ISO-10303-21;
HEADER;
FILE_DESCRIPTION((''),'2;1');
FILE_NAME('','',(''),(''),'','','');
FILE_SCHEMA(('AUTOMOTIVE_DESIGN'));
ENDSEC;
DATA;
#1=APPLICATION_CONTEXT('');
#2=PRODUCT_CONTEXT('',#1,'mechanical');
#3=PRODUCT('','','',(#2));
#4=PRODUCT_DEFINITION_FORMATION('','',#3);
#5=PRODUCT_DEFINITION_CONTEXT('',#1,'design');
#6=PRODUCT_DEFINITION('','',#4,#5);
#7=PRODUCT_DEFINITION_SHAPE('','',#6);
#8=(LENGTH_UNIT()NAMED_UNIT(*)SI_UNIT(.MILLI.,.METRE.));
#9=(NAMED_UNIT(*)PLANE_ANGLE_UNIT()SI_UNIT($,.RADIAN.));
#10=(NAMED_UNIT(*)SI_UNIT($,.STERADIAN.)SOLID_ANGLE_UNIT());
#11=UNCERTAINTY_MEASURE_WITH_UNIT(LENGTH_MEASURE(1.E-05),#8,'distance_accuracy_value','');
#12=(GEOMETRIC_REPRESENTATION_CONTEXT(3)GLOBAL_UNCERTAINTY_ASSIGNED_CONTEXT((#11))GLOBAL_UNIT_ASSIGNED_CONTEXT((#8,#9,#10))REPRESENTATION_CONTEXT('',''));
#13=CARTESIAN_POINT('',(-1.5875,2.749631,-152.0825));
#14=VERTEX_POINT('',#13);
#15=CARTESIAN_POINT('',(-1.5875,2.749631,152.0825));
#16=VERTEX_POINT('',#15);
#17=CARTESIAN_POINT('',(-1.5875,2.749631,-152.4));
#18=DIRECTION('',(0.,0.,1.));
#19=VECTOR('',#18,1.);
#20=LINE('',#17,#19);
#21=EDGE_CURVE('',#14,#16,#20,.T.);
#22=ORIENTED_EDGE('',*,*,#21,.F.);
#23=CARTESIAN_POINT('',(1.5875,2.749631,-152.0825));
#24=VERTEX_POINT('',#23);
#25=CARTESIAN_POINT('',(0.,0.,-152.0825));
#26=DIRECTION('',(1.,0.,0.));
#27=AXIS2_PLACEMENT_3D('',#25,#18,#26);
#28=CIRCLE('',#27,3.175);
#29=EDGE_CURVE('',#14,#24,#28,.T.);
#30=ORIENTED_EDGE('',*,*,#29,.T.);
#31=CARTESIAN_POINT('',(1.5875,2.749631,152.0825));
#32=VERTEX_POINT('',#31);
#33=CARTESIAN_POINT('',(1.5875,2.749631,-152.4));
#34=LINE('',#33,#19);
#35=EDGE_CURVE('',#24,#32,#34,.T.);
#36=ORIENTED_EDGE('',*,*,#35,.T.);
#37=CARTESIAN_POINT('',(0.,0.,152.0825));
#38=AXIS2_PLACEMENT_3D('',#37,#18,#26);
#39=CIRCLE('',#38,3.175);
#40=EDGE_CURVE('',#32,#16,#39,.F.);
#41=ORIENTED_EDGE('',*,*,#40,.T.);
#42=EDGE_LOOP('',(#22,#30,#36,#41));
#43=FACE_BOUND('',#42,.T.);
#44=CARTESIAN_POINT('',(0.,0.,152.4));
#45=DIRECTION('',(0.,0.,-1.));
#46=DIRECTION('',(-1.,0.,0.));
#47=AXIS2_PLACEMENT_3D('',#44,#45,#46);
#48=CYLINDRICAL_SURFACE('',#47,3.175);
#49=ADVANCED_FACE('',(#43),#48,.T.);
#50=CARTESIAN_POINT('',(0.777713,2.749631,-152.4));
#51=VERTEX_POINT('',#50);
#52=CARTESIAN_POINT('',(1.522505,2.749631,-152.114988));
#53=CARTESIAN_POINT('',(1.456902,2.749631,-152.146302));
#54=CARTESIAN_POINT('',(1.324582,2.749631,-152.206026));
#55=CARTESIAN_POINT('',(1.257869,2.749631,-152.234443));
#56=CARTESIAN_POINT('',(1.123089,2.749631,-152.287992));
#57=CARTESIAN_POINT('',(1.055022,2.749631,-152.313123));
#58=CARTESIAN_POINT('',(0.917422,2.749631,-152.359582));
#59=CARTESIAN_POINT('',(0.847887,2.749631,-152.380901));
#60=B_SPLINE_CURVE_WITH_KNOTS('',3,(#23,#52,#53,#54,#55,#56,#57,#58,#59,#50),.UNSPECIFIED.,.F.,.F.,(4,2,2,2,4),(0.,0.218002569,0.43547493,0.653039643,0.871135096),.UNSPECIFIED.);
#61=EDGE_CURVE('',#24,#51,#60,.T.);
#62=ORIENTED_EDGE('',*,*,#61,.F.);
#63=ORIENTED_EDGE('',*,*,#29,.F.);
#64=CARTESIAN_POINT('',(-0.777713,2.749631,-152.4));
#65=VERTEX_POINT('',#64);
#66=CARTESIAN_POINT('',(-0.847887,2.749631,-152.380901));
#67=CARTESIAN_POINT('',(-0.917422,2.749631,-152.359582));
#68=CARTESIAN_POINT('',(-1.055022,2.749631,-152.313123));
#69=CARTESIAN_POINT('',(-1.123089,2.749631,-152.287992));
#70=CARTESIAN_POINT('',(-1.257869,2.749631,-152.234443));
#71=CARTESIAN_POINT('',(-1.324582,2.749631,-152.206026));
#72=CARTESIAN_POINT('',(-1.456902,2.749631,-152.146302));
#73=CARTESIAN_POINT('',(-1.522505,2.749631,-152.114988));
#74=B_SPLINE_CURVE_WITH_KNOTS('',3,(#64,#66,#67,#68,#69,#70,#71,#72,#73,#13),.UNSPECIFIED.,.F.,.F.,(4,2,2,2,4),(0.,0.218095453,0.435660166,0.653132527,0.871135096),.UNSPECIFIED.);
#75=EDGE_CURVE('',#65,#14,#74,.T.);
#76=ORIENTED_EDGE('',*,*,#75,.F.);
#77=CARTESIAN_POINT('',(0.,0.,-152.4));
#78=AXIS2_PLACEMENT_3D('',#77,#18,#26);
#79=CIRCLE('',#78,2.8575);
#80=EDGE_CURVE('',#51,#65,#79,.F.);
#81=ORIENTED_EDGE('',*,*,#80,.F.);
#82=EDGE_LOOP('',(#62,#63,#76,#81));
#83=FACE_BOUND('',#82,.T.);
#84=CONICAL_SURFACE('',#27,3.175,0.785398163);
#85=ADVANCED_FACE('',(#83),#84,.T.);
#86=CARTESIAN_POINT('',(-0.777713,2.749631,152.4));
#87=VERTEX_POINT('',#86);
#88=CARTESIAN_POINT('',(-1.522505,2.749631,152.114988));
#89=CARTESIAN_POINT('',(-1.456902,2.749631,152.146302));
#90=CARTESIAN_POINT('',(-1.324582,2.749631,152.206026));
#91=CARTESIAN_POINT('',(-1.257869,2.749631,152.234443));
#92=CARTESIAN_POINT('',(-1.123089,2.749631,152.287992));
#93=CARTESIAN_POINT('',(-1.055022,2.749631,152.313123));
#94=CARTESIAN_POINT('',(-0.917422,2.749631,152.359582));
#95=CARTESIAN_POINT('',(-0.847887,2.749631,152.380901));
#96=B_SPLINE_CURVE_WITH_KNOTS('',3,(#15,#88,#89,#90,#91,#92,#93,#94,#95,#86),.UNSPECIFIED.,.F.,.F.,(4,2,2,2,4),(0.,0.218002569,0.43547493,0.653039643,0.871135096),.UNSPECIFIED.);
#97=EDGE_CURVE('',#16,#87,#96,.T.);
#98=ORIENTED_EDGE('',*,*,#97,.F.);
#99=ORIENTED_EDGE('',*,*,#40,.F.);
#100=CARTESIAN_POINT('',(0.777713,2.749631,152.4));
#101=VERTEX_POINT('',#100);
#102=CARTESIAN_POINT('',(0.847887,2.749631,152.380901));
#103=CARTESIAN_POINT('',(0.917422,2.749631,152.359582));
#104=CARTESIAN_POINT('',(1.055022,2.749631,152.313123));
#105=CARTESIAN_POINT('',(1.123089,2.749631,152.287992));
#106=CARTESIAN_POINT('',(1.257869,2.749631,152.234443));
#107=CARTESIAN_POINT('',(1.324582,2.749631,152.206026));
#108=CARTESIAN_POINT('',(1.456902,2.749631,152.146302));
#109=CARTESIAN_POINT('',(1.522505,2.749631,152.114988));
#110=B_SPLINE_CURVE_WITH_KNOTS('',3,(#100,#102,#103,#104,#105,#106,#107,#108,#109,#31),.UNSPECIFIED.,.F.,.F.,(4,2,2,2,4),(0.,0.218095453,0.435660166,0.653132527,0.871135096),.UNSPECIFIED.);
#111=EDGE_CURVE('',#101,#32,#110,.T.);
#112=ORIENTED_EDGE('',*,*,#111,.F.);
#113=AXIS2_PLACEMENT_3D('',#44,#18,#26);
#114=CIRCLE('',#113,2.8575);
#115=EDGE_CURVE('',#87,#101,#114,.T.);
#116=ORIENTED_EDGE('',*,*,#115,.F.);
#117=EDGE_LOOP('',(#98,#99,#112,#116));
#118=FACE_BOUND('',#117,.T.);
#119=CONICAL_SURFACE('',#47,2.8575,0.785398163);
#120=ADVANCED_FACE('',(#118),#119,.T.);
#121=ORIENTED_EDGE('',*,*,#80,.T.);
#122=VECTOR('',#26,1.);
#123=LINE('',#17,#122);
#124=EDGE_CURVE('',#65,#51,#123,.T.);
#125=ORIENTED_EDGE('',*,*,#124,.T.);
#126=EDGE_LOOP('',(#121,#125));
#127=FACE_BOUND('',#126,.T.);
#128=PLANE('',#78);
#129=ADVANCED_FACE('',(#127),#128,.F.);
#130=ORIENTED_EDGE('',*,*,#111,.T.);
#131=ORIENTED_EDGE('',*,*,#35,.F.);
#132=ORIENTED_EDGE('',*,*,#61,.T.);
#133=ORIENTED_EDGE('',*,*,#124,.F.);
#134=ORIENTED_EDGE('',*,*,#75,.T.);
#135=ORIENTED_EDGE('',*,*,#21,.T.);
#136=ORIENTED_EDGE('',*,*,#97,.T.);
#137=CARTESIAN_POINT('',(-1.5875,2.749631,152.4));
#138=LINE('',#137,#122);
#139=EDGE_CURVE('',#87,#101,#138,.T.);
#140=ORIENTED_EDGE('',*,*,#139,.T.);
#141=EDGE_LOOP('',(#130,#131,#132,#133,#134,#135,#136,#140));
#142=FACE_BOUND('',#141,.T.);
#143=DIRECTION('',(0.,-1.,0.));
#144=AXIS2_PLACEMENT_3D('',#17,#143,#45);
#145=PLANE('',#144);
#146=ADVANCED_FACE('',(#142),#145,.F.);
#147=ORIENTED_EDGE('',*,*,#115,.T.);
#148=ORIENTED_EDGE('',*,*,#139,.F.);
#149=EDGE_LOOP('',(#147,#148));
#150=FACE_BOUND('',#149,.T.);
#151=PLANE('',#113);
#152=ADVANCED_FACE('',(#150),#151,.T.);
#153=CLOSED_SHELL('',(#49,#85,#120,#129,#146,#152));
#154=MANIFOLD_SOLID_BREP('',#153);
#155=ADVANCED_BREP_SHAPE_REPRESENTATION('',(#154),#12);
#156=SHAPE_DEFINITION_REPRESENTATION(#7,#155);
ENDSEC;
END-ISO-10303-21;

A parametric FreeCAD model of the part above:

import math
import FreeCAD as App
import Part
import Sketcher
Q = App.Units.Quantity


def edges_at(feature, points):
    """Names of the edges that pass closest to the given points."""
    edges = feature.Shape.Edges
    near = lambda p: min(range(len(edges)), key=lambda i: edges[i].distToShape(Part.Vertex(*p))[0])
    return sorted({f"Edge{near(p) + 1}" for p in points})

doc = App.newDocument("Part")
body = doc.addObject("PartDesign::Body", "Body")

# Sketch on XY plane
sketch1 = body.newObject("Sketcher::SketchObject", "Sketch")
sketch1.AttachmentSupport = (doc.getObject("XY_Plane"), [""])
sketch1.MapMode = "FlatFace"
sketch1.addGeometry(Part.Circle(App.Vector(0, 0, 0), App.Vector(0, 0, 1), 3.2), False)
sketch1.addConstraint(Sketcher.Constraint("Coincident", 0, 3, -1, 1))
sketch1.addConstraint(Sketcher.Constraint("Diameter", 0, Q("0.25 in")))
pad1 = body.newObject("PartDesign::Pad", "Pad")
pad1.Profile = sketch1
pad1.Type = "TwoLengths"
pad1.Length = Q("6 in")
pad1.Length2 = Q("6 in")

# Sketch on XY plane
sketch2 = body.newObject("Sketcher::SketchObject", "Sketch001")
sketch2.AttachmentSupport = (doc.getObject("XY_Plane"), [""])
sketch2.MapMode = "FlatFace"
sketch2.addGeometry(Part.LineSegment(App.Vector(-1.6, 2.7, 0), App.Vector(1.6, 2.7, 0)), False)
sketch2.addGeometry(Part.ArcOfCircle(Part.Circle(App.Vector(0, 0, 0), App.Vector(0, 0, 1), 3.2), math.radians(60), math.radians(120)), False)
sketch2.addConstraint(Sketcher.Constraint("Coincident", 0, 1, 1, 2))
sketch2.addConstraint(Sketcher.Constraint("Coincident", 1, 1, 0, 2))
sketch2.addConstraint(Sketcher.Constraint("Horizontal", 0))
sketch2.addConstraint(Sketcher.Constraint("Coincident", 1, 3, -1, 1))
sketch2.addConstraint(Sketcher.Constraint("Radius", 1, Q("0.125 in")))
sketch2.addConstraint(Sketcher.Constraint("DistanceX", 0, 1, 0, 2, Q("0.125 in")))
pocket1 = body.newObject("PartDesign::Pocket", "Pocket")
pocket1.Profile = sketch2
pocket1.Type = "ThroughAll"
pocket1.Midplane = True
doc.recompute()

chamfer = body.newObject("PartDesign::Chamfer", "Chamfer")
chamfer.Base = (pocket1, edges_at(pocket1, [(0, -3.175, -152.4), (0, -3.175, 152.4)]))
chamfer.Size = Q("0.0125 in")

doc.recompute()
